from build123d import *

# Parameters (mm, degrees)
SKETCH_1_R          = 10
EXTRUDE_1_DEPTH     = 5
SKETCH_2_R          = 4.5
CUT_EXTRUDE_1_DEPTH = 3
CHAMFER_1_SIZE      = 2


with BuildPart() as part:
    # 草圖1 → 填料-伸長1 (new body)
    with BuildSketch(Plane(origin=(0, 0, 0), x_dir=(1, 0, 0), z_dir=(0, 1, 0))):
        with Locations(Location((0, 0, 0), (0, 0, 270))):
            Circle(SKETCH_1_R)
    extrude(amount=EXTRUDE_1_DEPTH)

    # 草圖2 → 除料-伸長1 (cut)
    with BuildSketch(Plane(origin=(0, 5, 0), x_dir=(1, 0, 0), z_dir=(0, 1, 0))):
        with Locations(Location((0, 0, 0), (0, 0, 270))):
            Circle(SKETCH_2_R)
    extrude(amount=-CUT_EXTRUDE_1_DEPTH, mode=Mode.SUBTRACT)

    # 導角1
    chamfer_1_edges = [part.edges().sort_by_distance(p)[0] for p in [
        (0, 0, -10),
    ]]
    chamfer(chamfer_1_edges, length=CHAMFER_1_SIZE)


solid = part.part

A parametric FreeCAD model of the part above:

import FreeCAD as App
import Part
import Sketcher
from FreeCAD import Vector


def edges_at(feature, points):
    """Names of the edges that pass closest to the given points."""
    edges = feature.Shape.Edges
    near = lambda p: min(range(len(edges)), key=lambda i: edges[i].distToShape(Part.Vertex(*p))[0])
    return sorted({f"Edge{near(p) + 1}" for p in points})

doc = App.newDocument("Part")
params = doc.addObject("Spreadsheet::Sheet", "Params")
for row, (alias, value) in enumerate([
    ("sketch1_diameter", "20 mm"),
    ("pad1_length", "5 mm"),
    ("sketch2_diameter", "9 mm"),
    ("pocket1_length", "3 mm"),
    ("chamfer_size", "2 mm"),
], start=1):
    params.set(f"A{row}", alias)
    params.set(f"B{row}", "=" + value)
    params.setAlias(f"B{row}", alias)

body = doc.addObject("PartDesign::Body", "Body")

# Sketch on XZ plane
sketch1 = body.newObject("Sketcher::SketchObject", "Sketch")
sketch1.AttachmentSupport = (doc.getObject("XZ_Plane"), [""])
sketch1.MapMode = "FlatFace"
sketch1.addGeometry(Part.Circle(Vector(0, 0, 0), Vector(0, 0, 1), 10), False)
sketch1.addConstraint([
    Sketcher.Constraint("Coincident", 0, 3, -1, 1),
    Sketcher.Constraint("Diameter", 0, 20.0),
])
sketch1.setExpression("Constraints[1]", "Params.sketch1_diameter")
pad1 = body.newObject("PartDesign::Pad", "Pad")
pad1.Profile = sketch1
pad1.setExpression("Length", "Params.pad1_length")
pad1.Reversed = True

# Sketch on XZ plane
sketch2 = body.newObject("Sketcher::SketchObject", "Sketch001")
sketch2.AttachmentSupport = (doc.getObject("XZ_Plane"), [""])
sketch2.MapMode = "FlatFace"
sketch2.AttachmentOffset = App.Placement(Vector(0, 0, -5), App.Rotation())
sketch2.addGeometry(Part.Circle(Vector(0, 0, 0), Vector(0, 0, 1), 4.5), False)
sketch2.addConstraint([
    Sketcher.Constraint("Coincident", 0, 3, -1, 1),
    Sketcher.Constraint("Diameter", 0, 9.0),
])
sketch2.setExpression("Constraints[1]", "Params.sketch2_diameter")
pocket1 = body.newObject("PartDesign::Pocket", "Pocket")
pocket1.Profile = sketch2
pocket1.setExpression("Length", "Params.pocket1_length")
pocket1.Reversed = True
doc.recompute()

chamfer = body.newObject("PartDesign::Chamfer", "Chamfer")
chamfer.Base = (pocket1, edges_at(pocket1, [(0, 0, -10)]))
chamfer.setExpression("Size", "Params.chamfer_size")

doc.recompute()
